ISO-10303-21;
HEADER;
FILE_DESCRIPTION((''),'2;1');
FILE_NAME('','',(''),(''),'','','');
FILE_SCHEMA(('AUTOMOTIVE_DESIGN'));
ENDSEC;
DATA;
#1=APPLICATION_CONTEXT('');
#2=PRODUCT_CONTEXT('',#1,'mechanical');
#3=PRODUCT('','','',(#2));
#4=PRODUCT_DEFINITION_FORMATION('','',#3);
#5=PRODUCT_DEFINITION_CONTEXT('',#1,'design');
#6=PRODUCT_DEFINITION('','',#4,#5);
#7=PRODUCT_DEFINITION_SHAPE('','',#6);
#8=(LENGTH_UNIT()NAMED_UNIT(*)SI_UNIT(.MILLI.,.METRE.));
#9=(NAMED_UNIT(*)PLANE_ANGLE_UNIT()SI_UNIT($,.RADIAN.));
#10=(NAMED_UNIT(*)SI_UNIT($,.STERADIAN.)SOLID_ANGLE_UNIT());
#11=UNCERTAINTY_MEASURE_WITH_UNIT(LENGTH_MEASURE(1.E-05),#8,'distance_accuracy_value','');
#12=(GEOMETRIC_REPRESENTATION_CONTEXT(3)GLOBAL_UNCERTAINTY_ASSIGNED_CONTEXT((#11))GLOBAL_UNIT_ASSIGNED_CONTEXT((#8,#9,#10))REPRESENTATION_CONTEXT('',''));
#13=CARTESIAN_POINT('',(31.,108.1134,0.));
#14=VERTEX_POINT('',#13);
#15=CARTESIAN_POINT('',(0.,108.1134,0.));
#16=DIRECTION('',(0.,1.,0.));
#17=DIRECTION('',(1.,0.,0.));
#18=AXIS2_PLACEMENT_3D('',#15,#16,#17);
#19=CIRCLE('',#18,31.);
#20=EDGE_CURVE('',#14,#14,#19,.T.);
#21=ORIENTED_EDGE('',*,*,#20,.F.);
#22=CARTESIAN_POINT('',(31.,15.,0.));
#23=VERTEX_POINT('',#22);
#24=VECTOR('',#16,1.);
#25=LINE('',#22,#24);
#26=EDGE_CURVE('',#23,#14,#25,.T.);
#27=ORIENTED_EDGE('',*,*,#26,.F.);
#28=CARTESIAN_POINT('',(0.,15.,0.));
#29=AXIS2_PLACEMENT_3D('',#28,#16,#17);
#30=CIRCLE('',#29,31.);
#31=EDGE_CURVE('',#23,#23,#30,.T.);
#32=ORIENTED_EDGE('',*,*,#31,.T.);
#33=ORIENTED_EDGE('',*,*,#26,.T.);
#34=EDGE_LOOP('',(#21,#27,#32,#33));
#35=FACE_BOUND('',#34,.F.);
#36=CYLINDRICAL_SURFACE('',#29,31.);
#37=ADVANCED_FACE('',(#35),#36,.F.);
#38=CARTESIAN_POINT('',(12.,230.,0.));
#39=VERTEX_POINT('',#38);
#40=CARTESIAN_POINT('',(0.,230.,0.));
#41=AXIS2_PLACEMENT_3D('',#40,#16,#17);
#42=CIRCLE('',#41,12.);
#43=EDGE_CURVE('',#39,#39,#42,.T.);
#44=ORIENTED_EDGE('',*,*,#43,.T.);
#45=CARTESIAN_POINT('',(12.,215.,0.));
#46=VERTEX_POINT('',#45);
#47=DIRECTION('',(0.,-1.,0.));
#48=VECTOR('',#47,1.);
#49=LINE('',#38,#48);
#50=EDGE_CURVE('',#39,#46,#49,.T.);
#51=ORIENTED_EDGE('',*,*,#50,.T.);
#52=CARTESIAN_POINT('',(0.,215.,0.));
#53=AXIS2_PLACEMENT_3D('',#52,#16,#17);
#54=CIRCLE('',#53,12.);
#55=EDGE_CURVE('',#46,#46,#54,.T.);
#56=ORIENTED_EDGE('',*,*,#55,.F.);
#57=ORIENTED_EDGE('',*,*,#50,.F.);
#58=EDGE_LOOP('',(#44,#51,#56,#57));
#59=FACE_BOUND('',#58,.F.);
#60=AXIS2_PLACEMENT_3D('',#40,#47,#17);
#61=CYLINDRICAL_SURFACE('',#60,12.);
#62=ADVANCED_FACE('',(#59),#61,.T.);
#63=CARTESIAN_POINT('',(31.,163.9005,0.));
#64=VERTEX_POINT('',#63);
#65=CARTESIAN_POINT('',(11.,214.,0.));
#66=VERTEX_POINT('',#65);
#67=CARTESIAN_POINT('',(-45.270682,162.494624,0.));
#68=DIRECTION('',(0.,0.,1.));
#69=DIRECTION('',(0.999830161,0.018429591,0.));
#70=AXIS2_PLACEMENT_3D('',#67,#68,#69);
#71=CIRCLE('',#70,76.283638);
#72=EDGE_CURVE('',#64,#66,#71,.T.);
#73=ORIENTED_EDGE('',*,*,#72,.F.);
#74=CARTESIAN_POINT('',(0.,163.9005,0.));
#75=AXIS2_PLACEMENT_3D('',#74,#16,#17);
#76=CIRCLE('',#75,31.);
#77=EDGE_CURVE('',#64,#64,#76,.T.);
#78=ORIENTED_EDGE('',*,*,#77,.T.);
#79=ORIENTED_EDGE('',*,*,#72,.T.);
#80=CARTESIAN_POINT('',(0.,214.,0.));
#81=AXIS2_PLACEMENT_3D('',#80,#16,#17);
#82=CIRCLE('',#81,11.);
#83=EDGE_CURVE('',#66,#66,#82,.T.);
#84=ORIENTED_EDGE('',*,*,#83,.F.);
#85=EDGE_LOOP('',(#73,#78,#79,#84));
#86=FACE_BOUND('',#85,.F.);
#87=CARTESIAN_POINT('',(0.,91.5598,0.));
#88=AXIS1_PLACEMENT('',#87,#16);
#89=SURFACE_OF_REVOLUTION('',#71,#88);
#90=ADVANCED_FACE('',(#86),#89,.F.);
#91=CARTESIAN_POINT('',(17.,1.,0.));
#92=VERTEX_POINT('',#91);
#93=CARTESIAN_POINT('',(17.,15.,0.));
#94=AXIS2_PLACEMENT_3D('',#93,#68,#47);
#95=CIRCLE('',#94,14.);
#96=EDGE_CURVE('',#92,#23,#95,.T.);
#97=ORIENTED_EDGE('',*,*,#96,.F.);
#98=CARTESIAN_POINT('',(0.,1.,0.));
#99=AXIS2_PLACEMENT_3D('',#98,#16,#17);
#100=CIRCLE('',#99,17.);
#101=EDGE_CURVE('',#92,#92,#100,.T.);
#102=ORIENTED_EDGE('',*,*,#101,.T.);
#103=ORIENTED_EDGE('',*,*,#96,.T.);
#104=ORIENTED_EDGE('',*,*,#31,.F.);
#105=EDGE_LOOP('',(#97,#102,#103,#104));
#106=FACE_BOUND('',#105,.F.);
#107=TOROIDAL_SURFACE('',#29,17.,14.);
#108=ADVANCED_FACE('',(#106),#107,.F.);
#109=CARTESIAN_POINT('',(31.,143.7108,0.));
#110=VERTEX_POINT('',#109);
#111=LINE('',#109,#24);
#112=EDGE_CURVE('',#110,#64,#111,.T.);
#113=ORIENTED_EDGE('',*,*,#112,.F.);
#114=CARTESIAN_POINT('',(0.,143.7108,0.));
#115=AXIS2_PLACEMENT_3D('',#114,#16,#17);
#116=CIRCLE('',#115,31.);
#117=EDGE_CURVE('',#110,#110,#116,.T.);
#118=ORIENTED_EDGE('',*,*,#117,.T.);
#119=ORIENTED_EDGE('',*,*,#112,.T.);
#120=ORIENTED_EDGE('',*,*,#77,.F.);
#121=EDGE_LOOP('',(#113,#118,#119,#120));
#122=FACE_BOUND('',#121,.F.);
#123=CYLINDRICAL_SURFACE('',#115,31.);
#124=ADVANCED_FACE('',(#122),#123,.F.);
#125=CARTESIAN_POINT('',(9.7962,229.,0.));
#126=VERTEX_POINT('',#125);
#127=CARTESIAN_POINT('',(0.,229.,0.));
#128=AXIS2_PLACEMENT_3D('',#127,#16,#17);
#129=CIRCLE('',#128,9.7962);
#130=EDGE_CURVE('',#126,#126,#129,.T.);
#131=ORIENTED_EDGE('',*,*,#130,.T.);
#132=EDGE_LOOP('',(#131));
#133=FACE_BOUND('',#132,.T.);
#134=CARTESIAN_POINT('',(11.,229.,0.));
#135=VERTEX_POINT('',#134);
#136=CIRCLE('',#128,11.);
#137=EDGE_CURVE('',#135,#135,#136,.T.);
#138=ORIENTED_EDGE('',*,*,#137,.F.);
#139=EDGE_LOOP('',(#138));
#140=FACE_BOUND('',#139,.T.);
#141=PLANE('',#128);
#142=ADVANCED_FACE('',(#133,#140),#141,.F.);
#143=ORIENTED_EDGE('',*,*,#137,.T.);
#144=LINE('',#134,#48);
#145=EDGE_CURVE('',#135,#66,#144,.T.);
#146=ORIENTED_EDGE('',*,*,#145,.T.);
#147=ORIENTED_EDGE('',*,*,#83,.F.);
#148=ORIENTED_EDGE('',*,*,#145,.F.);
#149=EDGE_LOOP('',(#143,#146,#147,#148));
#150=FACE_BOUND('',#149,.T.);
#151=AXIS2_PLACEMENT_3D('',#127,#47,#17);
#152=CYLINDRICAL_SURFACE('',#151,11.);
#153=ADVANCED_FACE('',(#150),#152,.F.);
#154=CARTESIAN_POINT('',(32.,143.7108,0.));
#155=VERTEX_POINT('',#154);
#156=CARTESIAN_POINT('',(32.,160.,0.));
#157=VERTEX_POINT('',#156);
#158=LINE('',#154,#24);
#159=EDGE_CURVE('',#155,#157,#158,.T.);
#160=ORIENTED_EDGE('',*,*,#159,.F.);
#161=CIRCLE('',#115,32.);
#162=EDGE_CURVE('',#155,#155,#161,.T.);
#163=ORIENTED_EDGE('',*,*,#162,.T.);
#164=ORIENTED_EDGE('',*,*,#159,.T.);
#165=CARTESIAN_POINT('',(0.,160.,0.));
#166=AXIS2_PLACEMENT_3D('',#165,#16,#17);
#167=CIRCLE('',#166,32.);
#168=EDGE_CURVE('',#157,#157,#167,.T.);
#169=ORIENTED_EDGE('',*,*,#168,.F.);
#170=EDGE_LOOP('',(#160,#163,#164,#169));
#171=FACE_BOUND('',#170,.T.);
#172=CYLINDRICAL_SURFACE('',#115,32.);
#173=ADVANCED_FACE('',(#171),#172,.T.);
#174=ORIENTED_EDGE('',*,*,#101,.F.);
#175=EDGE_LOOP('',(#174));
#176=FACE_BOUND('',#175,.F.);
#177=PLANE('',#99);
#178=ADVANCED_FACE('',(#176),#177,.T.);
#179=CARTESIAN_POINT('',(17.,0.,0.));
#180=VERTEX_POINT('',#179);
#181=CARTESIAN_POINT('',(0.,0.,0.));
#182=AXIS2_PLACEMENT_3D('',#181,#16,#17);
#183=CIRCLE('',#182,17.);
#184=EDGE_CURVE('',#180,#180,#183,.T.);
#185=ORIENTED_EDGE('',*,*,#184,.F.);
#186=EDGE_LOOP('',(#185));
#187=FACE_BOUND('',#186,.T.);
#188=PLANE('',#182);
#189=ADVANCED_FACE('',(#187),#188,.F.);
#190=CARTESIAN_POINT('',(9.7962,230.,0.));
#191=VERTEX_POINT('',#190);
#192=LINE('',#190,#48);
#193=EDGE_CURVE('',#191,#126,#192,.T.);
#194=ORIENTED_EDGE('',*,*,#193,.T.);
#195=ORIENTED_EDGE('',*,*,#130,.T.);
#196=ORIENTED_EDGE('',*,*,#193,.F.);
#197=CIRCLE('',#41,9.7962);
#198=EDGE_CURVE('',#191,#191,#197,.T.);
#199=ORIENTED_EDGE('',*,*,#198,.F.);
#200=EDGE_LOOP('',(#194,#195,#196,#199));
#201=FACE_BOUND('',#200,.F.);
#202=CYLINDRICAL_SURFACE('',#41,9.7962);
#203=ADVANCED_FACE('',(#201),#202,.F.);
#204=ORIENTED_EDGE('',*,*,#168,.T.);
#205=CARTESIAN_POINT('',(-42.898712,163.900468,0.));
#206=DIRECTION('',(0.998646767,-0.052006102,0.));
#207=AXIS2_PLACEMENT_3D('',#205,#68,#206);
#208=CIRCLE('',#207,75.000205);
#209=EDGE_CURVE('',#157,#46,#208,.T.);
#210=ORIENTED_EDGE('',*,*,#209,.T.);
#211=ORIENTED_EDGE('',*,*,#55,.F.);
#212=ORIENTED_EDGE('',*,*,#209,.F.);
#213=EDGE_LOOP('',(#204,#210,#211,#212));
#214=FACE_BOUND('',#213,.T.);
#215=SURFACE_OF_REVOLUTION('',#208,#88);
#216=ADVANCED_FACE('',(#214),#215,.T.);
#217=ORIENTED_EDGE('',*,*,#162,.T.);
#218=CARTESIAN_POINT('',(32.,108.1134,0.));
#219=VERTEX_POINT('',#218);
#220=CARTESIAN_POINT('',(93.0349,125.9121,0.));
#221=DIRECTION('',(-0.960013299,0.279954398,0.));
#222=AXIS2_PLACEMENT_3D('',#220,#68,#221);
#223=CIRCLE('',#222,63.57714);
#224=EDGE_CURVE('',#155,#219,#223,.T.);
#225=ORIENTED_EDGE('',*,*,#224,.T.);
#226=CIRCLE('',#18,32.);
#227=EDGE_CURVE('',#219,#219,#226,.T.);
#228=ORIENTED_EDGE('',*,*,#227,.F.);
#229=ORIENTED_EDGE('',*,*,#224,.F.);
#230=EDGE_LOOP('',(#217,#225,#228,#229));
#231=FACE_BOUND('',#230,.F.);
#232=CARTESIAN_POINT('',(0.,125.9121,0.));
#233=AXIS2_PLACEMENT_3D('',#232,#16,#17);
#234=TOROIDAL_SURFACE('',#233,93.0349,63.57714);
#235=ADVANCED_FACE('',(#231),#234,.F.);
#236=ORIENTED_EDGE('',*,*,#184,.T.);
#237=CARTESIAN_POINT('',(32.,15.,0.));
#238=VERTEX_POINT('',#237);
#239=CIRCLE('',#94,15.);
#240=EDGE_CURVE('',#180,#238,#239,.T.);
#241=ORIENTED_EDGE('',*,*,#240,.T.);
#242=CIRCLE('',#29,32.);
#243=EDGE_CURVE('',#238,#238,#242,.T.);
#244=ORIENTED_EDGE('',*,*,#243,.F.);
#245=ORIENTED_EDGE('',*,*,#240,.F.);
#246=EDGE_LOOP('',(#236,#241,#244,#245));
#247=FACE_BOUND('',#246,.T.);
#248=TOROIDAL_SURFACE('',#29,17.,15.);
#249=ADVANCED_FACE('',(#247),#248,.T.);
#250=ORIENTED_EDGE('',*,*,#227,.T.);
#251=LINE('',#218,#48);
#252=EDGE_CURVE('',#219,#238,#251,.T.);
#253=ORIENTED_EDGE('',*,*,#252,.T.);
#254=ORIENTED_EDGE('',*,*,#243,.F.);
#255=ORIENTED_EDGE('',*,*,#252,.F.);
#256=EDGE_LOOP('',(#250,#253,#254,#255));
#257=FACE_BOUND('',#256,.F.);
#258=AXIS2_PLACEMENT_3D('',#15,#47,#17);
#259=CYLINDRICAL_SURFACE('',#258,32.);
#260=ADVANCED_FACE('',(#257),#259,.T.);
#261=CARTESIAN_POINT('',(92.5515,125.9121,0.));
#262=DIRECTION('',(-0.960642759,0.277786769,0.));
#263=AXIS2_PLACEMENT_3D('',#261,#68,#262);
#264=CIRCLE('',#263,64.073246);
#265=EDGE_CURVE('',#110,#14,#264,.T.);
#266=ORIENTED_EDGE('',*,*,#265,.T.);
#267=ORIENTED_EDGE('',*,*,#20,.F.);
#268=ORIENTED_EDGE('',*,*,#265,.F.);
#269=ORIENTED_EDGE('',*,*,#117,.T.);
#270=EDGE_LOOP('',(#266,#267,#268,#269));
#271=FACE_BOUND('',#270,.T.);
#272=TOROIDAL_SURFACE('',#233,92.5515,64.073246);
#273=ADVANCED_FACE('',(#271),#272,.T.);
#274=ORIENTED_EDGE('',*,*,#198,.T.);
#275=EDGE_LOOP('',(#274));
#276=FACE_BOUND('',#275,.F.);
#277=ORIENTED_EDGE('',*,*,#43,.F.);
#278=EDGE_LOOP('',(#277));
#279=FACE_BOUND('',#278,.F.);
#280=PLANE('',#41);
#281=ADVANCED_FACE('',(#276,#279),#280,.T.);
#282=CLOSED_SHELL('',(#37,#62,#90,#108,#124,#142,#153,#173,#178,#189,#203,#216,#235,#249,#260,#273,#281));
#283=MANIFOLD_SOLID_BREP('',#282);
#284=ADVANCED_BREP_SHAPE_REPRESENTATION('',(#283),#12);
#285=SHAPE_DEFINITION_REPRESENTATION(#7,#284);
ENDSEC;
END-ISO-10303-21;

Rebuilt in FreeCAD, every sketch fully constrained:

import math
import FreeCAD as App
import Part
import Sketcher
Q = App.Units.Quantity

doc = App.newDocument("Part")
body = doc.addObject("PartDesign::Body", "Body")

# Sketch on XY plane
sketch1 = body.newObject("Sketcher::SketchObject", "Sketch")
sketch1.AttachmentSupport = (doc.getObject("XY_Plane"), [""])
sketch1.MapMode = "FlatFace"
sketch1.addGeometry(Part.LineSegment(App.Vector(0, 1, 0), App.Vector(0, 0, 0)), False)
sketch1.addGeometry(Part.LineSegment(App.Vector(0, 0, 0), App.Vector(17, 0, 0)), False)
sketch1.addGeometry(Part.ArcOfCircle(Part.Circle(App.Vector(17, 15, 0), App.Vector(0, 0, 1), 15), math.radians(-90), math.radians(0)), False)
sketch1.addGeometry(Part.LineSegment(App.Vector(32, 15, 0), App.Vector(32, 108.1, 0)), False)
sketch1.addGeometry(Part.ArcOfCircle(Part.Circle(App.Vector(93, 125.9, 0), App.Vector(0, 0, 1), 63.6), math.radians(164), math.radians(196)), False)
sketch1.addGeometry(Part.LineSegment(App.Vector(32, 143.7, 0), App.Vector(32, 160, 0)), False)
sketch1.addGeometry(Part.ArcOfCircle(Part.Circle(App.Vector(-42.9, 163.9, 0), App.Vector(0, 0, 1), 75), math.radians(-3), math.radians(43)), False)
sketch1.addGeometry(Part.LineSegment(App.Vector(12, 215, 0), App.Vector(12, 230, 0)), False)
sketch1.addGeometry(Part.LineSegment(App.Vector(12, 230, 0), App.Vector(0, 230, 0)), False)
sketch1.addGeometry(Part.LineSegment(App.Vector(0, 230, 0), App.Vector(0, 229, 0)), False)
sketch1.addGeometry(Part.LineSegment(App.Vector(0, 229, 0), App.Vector(11, 229, 0)), False)
sketch1.addGeometry(Part.LineSegment(App.Vector(11, 229, 0), App.Vector(11, 214, 0)), False)
sketch1.addGeometry(Part.ArcOfCircle(Part.Circle(App.Vector(-45.3, 162.5, 0), App.Vector(0, 0, 1), 76.3), math.radians(1), math.radians(42)), False)
sketch1.addGeometry(Part.LineSegment(App.Vector(31, 163.9, 0), App.Vector(31, 143.7, 0)), False)
sketch1.addGeometry(Part.ArcOfCircle(Part.Circle(App.Vector(92.6, 125.9, 0), App.Vector(0, 0, 1), 64.1), math.radians(164), math.radians(196)), False)
sketch1.addGeometry(Part.LineSegment(App.Vector(31, 108.1, 0), App.Vector(31, 15, 0)), False)
sketch1.addGeometry(Part.ArcOfCircle(Part.Circle(App.Vector(17, 15, 0), App.Vector(0, 0, 1), 14), math.radians(-90), math.radians(0)), False)
sketch1.addGeometry(Part.LineSegment(App.Vector(17, 1, 0), App.Vector(0, 1, 0)), False)
sketch1.addConstraint(Sketcher.Constraint("Coincident", 0, 2, 1, 1))
sketch1.addConstraint(Sketcher.Constraint("Tangent", 1, 2, 2, 1))
sketch1.addConstraint(Sketcher.Constraint("Tangent", 2, 2, 3, 1))
sketch1.addConstraint(Sketcher.Constraint("Coincident", 3, 2, 4, 2))
sketch1.addConstraint(Sketcher.Constraint("Coincident", 4, 1, 5, 1))
sketch1.addConstraint(Sketcher.Constraint("Coincident", 5, 2, 6, 1))
sketch1.addConstraint(Sketcher.Constraint("Coincident", 6, 2, 7, 1))
sketch1.addConstraint(Sketcher.Constraint("Coincident", 7, 2, 8, 1))
sketch1.addConstraint(Sketcher.Constraint("Coincident", 8, 2, 9, 1))
sketch1.addConstraint(Sketcher.Constraint("Coincident", 9, 2, 10, 1))
sketch1.addConstraint(Sketcher.Constraint("Coincident", 10, 2, 11, 1))
sketch1.addConstraint(Sketcher.Constraint("Coincident", 11, 2, 12, 2))
sketch1.addConstraint(Sketcher.Constraint("Coincident", 12, 1, 13, 1))
sketch1.addConstraint(Sketcher.Constraint("Coincident", 13, 2, 14, 1))
sketch1.addConstraint(Sketcher.Constraint("Coincident", 14, 2, 15, 1))
sketch1.addConstraint(Sketcher.Constraint("Tangent", 15, 2, 16, 2))
sketch1.addConstraint(Sketcher.Constraint("Tangent", 16, 1, 17, 1))
sketch1.addConstraint(Sketcher.Constraint("Coincident", 17, 2, 0, 1))
sketch1.addConstraint(Sketcher.Constraint("Vertical", 0))
sketch1.addConstraint(Sketcher.Constraint("Horizontal", 1))
sketch1.addConstraint(Sketcher.Constraint("Vertical", 3))
sketch1.addConstraint(Sketcher.Constraint("Vertical", 5))
sketch1.addConstraint(Sketcher.Constraint("Vertical", 7))
sketch1.addConstraint(Sketcher.Constraint("Horizontal", 8))
sketch1.addConstraint(Sketcher.Constraint("Vertical", 9))
sketch1.addConstraint(Sketcher.Constraint("Horizontal", 10))
sketch1.addConstraint(Sketcher.Constraint("Vertical", 11))
sketch1.addConstraint(Sketcher.Constraint("Vertical", 13))
sketch1.addConstraint(Sketcher.Constraint("Vertical", 15))
sketch1.addConstraint(Sketcher.Constraint("Horizontal", 17))
sketch1.addConstraint(Sketcher.Constraint("Coincident", 0, 2, -1, 1))
sketch1.addConstraint(Sketcher.Constraint("Coincident", 16, 3, 2, 3))
sketch1.addConstraint(Sketcher.Constraint("PointOnObject", 8, 2, -2))
sketch1.addConstraint(Sketcher.Constraint("Horizontal", 4, 3, 14, 3))
sketch1.addConstraint(Sketcher.Constraint("Horizontal", 6, 3, 12, 1))
sketch1.addConstraint(Sketcher.Constraint("Horizontal", 4, 1, 13, 2))
sketch1.addConstraint(Sketcher.Constraint("Horizontal", 3, 2, 14, 2))
sketch1.addConstraint(Sketcher.Constraint("Vertical", 3, 2, 4, 1))
sketch1.addConstraint(Sketcher.Constraint("Equal", 0, 9))
sketch1.addConstraint(Sketcher.Constraint("Equal", 7, 11))
sketch1.addConstraint(Sketcher.Constraint("Radius", 2, Q("15 mm")))
sketch1.addConstraint(Sketcher.Constraint("Radius", 6, Q("75 mm")))
sketch1.addConstraint(Sketcher.Constraint("DistanceX", 8, 2, 8, 1, Q("12 mm")))
sketch1.addConstraint(Sketcher.Constraint("DistanceX", 10, 1, 10, 2, Q("11 mm")))
sketch1.addConstraint(Sketcher.Constraint("DistanceY", 0, 2, 0, 1, Q("1 mm")))
sketch1.addConstraint(Sketcher.Constraint("DistanceY", 7, 1, 7, 2, Q("15 mm")))
sketch1.addConstraint(Sketcher.Constraint("DistanceX", -1, 1, 2, 2, Q("32 mm")))
sketch1.addConstraint(Sketcher.Constraint("DistanceY", -1, 1, 5, 2, Q("160 mm")))
sketch1.addConstraint(Sketcher.Constraint("DistanceY", -1, 1, 7, 2, Q("230 mm")))
sketch1.addConstraint(Sketcher.Constraint("Radius", 4, Q("63.5771 mm")))
sketch1.addConstraint(Sketcher.Constraint("DistanceY", 3, 1, 3, 2, Q("93.1134 mm")))
sketch1.addConstraint(Sketcher.Constraint("Radius", 12, Q("76.2838 mm")))
sketch1.addConstraint(Sketcher.Constraint("Radius", 14, Q("64.0732 mm")))
sketch1.addConstraint(Sketcher.Constraint("DistanceX", 6, 3, 14, 3, Q("135.45 mm")))
revolution = body.newObject("PartDesign::Revolution", "Revolution")
revolution.Profile = sketch1
revolution.ReferenceAxis = (sketch1, ["V_Axis"])
revolution.Angle = 360

# Sketch on XZ plane
sketch2 = body.newObject("Sketcher::SketchObject", "Sketch001")
sketch2.AttachmentSupport = (doc.getObject("XZ_Plane"), [""])
sketch2.MapMode = "FlatFace"
sketch2.AttachmentOffset = App.Placement(App.Vector(0, 0, -230), App.Rotation())
sketch2.addGeometry(Part.Circle(App.Vector(0, 0, 0), App.Vector(0, 0, 1), 10), False)
sketch2.addConstraint(Sketcher.Constraint("Coincident", 0, 3, -1, 1))
sketch2.addConstraint(Sketcher.Constraint("Diameter", 0, Q("19.5924 mm")))
pocket1 = body.newObject("PartDesign::Pocket", "Pocket")
pocket1.Profile = sketch2
pocket1.Length = 75
pocket1.Reversed = True

doc.recompute()
